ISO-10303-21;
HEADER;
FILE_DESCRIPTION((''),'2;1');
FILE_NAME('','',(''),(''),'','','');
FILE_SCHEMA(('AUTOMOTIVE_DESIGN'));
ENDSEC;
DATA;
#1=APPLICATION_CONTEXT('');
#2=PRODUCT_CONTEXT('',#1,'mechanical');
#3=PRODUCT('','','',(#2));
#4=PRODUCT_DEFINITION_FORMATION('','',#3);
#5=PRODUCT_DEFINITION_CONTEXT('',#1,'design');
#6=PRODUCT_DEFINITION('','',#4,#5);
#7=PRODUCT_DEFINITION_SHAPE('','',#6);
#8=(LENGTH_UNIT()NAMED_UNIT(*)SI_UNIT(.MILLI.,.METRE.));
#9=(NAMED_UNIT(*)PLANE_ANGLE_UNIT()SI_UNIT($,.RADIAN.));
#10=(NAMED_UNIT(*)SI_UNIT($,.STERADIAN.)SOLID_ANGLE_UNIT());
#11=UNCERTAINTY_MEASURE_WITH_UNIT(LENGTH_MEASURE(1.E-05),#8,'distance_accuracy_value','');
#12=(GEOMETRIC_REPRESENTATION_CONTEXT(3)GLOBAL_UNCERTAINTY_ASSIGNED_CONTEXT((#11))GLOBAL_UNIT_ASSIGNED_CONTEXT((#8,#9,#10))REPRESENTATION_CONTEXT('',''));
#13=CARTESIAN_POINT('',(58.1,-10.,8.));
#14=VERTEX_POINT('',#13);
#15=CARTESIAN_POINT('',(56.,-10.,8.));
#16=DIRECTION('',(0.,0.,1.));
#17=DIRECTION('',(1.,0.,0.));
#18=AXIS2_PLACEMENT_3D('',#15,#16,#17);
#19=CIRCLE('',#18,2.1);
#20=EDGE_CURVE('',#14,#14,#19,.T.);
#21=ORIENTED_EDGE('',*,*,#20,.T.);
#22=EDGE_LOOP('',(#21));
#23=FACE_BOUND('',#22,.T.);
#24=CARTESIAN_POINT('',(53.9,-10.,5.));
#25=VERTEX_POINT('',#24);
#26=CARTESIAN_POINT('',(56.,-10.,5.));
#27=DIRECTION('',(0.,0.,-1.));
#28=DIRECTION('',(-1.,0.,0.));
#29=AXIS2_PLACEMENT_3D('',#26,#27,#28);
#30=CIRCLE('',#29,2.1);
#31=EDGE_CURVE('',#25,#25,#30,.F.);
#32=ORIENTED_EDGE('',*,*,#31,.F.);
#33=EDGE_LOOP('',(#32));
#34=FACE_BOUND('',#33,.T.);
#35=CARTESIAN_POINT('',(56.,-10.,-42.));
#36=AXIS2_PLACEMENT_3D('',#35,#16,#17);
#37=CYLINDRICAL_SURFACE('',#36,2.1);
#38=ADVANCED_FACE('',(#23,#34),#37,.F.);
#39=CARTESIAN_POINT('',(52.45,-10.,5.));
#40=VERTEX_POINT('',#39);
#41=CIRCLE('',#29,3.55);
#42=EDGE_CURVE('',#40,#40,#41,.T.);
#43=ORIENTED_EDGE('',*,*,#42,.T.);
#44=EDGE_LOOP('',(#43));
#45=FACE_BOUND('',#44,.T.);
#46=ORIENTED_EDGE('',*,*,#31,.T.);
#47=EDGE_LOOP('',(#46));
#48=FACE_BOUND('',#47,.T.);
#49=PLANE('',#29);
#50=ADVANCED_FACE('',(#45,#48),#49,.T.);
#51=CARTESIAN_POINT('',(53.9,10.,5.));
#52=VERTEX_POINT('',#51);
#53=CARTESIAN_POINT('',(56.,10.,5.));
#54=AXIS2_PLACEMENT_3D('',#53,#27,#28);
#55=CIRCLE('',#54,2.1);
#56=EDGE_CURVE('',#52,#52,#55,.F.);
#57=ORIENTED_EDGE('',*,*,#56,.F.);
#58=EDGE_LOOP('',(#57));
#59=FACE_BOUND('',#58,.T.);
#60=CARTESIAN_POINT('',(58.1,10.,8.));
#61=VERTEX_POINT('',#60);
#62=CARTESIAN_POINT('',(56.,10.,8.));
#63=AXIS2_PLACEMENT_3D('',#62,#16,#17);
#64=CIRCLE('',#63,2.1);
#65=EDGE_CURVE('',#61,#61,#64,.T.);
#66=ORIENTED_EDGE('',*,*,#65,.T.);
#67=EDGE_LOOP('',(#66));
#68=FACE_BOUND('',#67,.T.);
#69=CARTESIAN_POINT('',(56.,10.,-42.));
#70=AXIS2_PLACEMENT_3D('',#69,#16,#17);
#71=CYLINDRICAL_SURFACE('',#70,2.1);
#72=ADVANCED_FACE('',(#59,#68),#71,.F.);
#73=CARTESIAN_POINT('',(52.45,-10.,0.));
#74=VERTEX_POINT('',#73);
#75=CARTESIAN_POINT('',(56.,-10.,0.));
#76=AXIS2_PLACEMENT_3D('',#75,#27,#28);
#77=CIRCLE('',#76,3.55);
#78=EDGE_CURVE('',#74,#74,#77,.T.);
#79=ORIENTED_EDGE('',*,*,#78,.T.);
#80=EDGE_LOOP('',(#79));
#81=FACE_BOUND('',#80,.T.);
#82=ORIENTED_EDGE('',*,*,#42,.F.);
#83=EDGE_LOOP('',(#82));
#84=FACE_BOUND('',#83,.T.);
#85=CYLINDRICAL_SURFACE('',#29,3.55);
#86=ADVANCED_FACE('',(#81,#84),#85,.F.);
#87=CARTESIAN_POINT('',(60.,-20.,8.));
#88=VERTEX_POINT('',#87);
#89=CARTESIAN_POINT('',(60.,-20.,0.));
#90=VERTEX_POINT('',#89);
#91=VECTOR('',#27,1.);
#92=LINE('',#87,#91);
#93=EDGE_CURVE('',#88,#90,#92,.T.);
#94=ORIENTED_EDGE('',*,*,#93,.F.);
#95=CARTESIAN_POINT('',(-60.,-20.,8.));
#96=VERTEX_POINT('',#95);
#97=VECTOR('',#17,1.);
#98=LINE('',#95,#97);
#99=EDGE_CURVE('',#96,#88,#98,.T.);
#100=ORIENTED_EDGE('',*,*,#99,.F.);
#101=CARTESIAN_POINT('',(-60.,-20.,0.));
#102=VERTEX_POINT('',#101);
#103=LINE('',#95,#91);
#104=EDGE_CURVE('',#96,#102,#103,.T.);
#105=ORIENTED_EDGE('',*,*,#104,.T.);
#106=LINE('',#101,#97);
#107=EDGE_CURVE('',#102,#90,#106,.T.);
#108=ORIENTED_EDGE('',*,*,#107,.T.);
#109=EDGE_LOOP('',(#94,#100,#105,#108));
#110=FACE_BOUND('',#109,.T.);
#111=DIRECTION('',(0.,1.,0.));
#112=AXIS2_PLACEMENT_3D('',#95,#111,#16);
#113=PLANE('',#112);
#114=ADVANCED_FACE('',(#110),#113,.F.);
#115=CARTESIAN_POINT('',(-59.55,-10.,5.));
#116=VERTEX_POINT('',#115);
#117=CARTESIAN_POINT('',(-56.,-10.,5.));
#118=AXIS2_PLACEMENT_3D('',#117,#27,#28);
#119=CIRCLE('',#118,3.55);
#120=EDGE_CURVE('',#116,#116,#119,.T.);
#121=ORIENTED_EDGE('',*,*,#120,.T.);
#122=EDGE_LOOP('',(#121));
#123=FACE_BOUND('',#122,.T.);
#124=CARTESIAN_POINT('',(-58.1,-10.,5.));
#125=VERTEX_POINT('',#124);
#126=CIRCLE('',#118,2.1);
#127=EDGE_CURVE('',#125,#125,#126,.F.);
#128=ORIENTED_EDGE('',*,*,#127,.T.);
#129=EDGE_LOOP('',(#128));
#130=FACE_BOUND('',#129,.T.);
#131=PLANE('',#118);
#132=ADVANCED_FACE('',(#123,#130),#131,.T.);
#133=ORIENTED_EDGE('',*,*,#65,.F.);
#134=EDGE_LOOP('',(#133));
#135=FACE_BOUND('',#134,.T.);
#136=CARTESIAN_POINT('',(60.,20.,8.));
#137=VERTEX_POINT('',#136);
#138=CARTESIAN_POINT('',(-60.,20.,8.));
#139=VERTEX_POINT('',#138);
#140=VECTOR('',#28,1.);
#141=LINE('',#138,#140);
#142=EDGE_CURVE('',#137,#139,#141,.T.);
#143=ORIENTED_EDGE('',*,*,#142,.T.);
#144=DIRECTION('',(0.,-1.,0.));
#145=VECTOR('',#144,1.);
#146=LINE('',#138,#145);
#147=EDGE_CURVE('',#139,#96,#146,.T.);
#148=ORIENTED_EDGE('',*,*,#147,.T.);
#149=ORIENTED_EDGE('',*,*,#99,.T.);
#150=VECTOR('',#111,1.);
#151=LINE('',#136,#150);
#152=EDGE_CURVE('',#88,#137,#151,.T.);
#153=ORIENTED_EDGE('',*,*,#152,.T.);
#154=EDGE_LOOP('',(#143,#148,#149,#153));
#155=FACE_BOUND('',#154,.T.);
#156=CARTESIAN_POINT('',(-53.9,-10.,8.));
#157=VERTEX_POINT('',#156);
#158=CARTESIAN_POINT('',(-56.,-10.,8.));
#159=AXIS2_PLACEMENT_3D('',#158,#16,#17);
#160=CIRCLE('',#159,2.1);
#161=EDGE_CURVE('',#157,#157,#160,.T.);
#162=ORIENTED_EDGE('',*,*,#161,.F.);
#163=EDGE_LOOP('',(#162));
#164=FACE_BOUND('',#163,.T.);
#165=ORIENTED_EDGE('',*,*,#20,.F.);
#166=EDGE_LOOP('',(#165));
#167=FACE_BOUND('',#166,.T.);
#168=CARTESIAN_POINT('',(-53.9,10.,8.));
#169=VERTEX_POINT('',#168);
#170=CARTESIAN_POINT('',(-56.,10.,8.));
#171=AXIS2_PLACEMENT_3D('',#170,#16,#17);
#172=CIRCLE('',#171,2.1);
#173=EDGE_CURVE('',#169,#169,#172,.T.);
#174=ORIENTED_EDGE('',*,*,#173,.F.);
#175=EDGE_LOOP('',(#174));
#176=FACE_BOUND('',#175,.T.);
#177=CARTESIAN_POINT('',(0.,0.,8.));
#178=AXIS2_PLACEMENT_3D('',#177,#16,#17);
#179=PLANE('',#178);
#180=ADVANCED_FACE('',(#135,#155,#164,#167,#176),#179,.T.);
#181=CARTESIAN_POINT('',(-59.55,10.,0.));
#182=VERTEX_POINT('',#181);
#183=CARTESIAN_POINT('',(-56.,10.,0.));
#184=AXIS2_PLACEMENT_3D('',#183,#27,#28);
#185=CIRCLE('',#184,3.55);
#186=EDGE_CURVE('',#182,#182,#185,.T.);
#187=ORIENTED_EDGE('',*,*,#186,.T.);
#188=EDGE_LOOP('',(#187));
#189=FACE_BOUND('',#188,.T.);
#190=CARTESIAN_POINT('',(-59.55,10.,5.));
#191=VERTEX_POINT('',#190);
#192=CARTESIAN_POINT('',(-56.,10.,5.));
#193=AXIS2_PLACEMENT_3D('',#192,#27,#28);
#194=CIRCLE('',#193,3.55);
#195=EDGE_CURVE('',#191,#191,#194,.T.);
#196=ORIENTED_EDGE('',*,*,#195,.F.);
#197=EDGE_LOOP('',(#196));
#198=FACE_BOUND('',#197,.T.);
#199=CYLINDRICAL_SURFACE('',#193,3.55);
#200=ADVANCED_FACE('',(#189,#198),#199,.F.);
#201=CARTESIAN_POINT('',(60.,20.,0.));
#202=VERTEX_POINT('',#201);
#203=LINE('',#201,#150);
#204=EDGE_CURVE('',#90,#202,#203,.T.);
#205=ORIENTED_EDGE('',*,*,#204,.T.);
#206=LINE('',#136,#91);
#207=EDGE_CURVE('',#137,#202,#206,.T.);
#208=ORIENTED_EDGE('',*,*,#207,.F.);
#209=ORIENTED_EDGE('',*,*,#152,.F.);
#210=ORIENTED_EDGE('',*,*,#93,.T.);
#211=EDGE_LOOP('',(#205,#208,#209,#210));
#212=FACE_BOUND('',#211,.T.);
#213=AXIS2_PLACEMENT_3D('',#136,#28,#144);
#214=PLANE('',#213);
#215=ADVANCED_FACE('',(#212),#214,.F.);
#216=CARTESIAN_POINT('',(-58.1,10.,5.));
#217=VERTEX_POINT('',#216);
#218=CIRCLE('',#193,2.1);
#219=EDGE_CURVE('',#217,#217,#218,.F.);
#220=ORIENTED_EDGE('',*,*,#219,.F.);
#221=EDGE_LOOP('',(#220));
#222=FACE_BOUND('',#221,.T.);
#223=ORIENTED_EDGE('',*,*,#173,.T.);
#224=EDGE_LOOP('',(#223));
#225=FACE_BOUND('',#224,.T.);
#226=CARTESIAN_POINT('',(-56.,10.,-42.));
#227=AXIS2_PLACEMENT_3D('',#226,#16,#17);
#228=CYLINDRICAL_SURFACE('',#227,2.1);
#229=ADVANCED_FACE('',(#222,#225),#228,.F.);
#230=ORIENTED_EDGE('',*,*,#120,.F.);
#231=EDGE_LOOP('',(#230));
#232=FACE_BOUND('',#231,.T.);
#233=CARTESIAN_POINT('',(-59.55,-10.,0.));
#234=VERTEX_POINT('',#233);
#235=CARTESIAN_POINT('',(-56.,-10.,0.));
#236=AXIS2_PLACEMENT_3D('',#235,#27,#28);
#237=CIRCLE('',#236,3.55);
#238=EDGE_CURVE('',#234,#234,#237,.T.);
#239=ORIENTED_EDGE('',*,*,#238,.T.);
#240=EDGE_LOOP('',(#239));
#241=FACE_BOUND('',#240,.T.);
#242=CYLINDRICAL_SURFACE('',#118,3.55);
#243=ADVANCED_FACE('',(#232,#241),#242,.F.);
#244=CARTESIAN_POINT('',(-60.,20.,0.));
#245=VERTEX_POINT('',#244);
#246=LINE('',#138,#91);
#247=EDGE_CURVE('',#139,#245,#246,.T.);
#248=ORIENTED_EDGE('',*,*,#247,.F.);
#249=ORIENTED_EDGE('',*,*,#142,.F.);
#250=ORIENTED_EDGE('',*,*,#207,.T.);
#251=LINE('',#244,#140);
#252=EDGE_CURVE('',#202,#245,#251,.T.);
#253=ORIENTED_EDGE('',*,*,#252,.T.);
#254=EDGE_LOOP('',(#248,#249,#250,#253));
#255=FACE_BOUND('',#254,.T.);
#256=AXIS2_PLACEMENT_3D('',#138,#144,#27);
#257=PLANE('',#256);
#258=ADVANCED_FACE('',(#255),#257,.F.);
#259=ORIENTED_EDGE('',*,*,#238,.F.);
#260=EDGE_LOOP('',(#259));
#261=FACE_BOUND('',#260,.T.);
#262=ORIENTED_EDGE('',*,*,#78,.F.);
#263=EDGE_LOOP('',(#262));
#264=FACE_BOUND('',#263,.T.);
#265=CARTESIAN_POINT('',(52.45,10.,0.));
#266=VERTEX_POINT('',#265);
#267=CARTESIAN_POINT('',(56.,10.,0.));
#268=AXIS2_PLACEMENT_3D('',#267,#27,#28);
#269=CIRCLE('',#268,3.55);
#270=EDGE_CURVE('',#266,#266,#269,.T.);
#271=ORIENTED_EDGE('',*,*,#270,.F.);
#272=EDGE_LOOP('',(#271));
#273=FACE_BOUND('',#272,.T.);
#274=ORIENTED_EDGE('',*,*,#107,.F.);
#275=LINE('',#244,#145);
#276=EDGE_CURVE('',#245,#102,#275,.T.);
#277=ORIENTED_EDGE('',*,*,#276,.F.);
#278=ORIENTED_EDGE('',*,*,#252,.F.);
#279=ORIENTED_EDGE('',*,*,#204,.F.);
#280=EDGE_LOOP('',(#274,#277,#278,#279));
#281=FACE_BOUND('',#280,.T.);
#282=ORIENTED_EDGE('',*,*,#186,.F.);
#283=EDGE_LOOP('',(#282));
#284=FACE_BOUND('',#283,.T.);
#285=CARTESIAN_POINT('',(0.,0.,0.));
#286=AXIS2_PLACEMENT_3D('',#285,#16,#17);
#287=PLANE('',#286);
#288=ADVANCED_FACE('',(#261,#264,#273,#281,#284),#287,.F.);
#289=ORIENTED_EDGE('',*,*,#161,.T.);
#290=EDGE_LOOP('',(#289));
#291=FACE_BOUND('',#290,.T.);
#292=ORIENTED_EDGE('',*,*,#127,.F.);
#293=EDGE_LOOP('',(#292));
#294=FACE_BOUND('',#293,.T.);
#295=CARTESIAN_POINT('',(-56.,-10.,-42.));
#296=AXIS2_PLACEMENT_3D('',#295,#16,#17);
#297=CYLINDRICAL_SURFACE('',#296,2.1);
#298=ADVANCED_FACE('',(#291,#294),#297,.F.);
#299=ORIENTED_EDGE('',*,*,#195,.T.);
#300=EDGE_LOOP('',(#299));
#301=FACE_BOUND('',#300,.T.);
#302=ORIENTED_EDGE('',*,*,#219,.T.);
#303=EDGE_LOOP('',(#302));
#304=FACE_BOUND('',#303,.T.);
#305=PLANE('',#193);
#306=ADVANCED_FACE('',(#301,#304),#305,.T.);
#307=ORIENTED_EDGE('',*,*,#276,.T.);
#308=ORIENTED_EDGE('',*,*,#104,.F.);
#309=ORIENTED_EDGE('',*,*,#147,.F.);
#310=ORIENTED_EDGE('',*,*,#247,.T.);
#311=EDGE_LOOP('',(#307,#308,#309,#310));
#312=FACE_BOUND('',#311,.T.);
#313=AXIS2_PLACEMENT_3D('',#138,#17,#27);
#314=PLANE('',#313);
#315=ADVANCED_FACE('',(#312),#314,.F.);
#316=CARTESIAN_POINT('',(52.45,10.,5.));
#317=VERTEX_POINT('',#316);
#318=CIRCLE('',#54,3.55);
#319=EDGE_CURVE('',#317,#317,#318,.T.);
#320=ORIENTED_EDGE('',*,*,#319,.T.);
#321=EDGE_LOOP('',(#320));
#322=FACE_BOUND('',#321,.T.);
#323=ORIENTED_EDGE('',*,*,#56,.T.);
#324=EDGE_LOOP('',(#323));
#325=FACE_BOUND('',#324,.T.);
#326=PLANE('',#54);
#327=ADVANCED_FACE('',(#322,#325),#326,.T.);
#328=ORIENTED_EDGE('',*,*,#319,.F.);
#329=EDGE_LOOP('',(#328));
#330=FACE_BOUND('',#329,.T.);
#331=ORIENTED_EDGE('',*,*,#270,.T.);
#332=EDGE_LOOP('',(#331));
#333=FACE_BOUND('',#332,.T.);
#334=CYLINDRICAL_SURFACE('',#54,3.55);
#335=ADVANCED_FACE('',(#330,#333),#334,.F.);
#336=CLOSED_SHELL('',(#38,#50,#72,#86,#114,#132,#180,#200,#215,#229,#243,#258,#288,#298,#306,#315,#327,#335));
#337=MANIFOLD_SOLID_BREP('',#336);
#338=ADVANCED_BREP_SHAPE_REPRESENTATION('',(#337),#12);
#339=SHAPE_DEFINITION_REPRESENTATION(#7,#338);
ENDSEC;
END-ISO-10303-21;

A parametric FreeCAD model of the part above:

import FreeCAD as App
import Part
import Sketcher
from FreeCAD import Vector
Q = App.Units.Quantity


def add_polygon(sketch, points):
    """Adds a closed chain of lines whose ends are joined by coincident constraints."""
    first, n = sketch.GeometryCount, len(points)
    for a, b in zip(points, points[1:] + points[:1]):
        sketch.addGeometry(Part.LineSegment(App.Vector(*a, 0), App.Vector(*b, 0)), False)
    for i in range(n):
        sketch.addConstraint(Sketcher.Constraint("Coincident", first + i, 2, first + (i + 1) % n, 1))

doc = App.newDocument("Part")
body = doc.addObject("PartDesign::Body", "Body")

sketch1 = body.newObject("Sketcher::SketchObject", "Sketch")
sketch1.AttachmentSupport = (doc.getObject("XY_Plane"), [""])
sketch1.MapMode = "FlatFace"
add_polygon(sketch1, [(-60, 20), (-60, -20), (60, -20), (60, 20)])
sketch1.addConstraint([
    Sketcher.Constraint("Vertical", 0),
    Sketcher.Constraint("Horizontal", 1),
    Sketcher.Constraint("Vertical", 2),
    Sketcher.Constraint("Horizontal", 3),
    Sketcher.Constraint("Symmetric", 0, 2, 2, 2, -1, 1),
    Sketcher.Constraint("DistanceX", 1, 1, 1, 2, Q("120 mm")),
    Sketcher.Constraint("DistanceY", 0, 2, 0, 1, Q("40 mm")),
])
pad1 = body.newObject("PartDesign::Pad", "Pad")
pad1.Profile = sketch1
pad1.Length = 8

sketch2 = body.newObject("Sketcher::SketchObject", "Sketch001")
sketch2.AttachmentSupport = (doc.getObject("XY_Plane"), [""])
sketch2.MapMode = "FlatFace"
sketch2.AttachmentOffset = App.Placement(Vector(0, 0, 8), App.Rotation())
sketch2.addGeometry([
    Part.Circle(Vector(-56, 10, 0), Vector(0, 0, 1), 2.1),
    Part.Circle(Vector(-56, -10, 0), Vector(0, 0, 1), 2.1),
], False)
sketch2.addConstraint([
    Sketcher.Constraint("Equal", 0, 1),
    Sketcher.Constraint("Symmetric", 0, 3, 1, 3, -1),
    Sketcher.Constraint("Diameter", 0, Q("4.2 mm")),
    Sketcher.Constraint("DistanceX", 0, 3, -1, 1, Q("56 mm")),
    Sketcher.Constraint("DistanceY", -1, 1, 0, 3, Q("10 mm")),
])
pocket1 = body.newObject("PartDesign::Pocket", "Pocket")
pocket1.Profile = sketch2
pocket1.Length = 50
doc.recompute()

linearpattern = body.newObject("PartDesign::LinearPattern", "LinearPattern")
linearpattern.Originals = [pocket1]
linearpattern.Direction = (doc.getObject("X_Axis"), [""])
linearpattern.Mode = "offset"
linearpattern.Offset = 112
linearpattern.Occurrences = 2
body.Tip = linearpattern

sketch3 = body.newObject("Sketcher::SketchObject", "Sketch002")
sketch3.AttachmentSupport = (doc.getObject("XY_Plane"), [""])
sketch3.MapMode = "FlatFace"
sketch3.addGeometry([
    Part.Circle(Vector(56, 10, 0), Vector(0, 0, 1), 3.5),
    Part.Circle(Vector(56, -10, 0), Vector(0, 0, 1), 3.5),
    Part.Circle(Vector(-56, 10, 0), Vector(0, 0, 1), 3.5),
    Part.Circle(Vector(-56, -10, 0), Vector(0, 0, 1), 3.5),
], False)
sketch3.addConstraint([
    Sketcher.Constraint("Equal", 0, 1),
    Sketcher.Constraint("Equal", 1, 2),
    Sketcher.Constraint("Equal", 2, 3),
    Sketcher.Constraint("Symmetric", 1, 3, 2, 3, -1, 1),
    Sketcher.Constraint("Symmetric", 0, 3, 3, 3, -1, 1),
    Sketcher.Constraint("Symmetric", 0, 3, 2, 3, -2),
    Sketcher.Constraint("Diameter", 0, Q("7.1 mm")),
    Sketcher.Constraint("DistanceX", -1, 1, 0, 3, Q("56 mm")),
    Sketcher.Constraint("DistanceY", -1, 1, 0, 3, Q("10 mm")),
])
pocket2 = body.newObject("PartDesign::Pocket", "Pocket001")
pocket2.Profile = sketch3
pocket2.Length = 5
pocket2.Reversed = True

doc.recompute()
